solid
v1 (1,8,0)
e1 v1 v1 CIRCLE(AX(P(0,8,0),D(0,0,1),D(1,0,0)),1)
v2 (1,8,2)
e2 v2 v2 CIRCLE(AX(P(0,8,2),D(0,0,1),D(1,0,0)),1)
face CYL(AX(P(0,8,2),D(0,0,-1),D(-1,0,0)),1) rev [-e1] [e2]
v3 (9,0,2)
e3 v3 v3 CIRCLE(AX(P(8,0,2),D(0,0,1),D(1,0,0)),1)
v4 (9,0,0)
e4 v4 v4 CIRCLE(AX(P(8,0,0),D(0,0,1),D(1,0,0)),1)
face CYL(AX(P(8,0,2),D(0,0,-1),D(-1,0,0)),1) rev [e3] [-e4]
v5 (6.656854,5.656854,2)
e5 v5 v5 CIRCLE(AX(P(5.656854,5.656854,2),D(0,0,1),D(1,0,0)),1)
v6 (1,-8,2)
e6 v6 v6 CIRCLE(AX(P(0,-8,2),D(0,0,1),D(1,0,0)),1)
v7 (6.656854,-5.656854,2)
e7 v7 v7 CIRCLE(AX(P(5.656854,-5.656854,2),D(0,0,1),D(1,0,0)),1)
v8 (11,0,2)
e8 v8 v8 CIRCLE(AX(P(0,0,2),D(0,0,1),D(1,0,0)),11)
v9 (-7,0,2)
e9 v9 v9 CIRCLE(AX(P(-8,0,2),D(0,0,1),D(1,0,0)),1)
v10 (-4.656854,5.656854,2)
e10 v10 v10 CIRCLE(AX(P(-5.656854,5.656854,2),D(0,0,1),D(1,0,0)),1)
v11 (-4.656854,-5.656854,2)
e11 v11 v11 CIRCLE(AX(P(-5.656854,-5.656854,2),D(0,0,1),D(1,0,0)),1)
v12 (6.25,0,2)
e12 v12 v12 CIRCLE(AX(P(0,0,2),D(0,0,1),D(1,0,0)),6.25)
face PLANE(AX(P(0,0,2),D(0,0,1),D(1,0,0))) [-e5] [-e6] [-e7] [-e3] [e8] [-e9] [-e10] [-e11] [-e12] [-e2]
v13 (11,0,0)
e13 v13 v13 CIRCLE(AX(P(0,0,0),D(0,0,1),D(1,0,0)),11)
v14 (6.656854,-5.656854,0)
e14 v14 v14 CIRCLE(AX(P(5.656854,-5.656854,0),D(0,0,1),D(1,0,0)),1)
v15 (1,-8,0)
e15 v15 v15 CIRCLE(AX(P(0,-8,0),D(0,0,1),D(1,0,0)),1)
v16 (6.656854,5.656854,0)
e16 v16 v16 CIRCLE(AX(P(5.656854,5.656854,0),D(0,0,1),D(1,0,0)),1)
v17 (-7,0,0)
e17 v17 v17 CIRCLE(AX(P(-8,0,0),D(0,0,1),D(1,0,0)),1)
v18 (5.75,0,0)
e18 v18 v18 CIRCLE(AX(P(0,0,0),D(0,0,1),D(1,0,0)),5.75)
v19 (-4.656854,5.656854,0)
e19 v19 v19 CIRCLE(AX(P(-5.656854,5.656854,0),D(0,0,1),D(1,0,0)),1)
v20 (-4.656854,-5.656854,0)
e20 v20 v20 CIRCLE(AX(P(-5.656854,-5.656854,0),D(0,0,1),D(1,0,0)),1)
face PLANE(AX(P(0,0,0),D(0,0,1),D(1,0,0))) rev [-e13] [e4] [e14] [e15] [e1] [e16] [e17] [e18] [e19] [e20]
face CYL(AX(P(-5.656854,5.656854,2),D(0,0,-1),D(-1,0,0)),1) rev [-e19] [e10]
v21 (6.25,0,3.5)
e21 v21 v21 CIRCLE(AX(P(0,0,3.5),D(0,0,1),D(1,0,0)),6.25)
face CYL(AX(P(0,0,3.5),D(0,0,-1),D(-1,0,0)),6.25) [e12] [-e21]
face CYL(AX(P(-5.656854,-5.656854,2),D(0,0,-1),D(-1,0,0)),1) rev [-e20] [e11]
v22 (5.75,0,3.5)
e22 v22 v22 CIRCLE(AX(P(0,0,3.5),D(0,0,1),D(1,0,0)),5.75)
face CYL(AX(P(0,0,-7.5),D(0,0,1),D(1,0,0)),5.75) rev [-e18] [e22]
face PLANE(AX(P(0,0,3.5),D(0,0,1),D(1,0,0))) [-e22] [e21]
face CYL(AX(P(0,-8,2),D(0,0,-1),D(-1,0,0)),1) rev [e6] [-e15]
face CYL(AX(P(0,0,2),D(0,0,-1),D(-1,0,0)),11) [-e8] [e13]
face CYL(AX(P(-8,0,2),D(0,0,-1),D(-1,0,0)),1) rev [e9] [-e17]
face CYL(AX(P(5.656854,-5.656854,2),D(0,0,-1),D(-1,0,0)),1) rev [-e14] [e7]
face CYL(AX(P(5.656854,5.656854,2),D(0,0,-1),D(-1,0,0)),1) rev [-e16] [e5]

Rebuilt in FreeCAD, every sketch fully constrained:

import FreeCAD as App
import Part
import Sketcher
Q = App.Units.Quantity

doc = App.newDocument("Part")
body = doc.addObject("PartDesign::Body", "Body")

sketch1 = body.newObject("Sketcher::SketchObject", "Sketch")
sketch1.AttachmentSupport = (doc.getObject("XY_Plane"), [""])
sketch1.MapMode = "FlatFace"
sketch1.addGeometry([
    Part.Circle(App.Vector(0, 0, 0), App.Vector(0, 0, 1), 11),
    Part.Circle(App.Vector(-5.7, -5.7, 0), App.Vector(0, 0, 1), 1),
    Part.Circle(App.Vector(0, -8, 0), App.Vector(0, 0, 1), 1),
    Part.Circle(App.Vector(5.7, -5.7, 0), App.Vector(0, 0, 1), 1),
    Part.Circle(App.Vector(-8, 0, 0), App.Vector(0, 0, 1), 1),
    Part.Circle(App.Vector(-5.7, 5.7, 0), App.Vector(0, 0, 1), 1),
    Part.Circle(App.Vector(8, 0, 0), App.Vector(0, 0, 1), 1),
    Part.Circle(App.Vector(0, 8, 0), App.Vector(0, 0, 1), 1),
    Part.Circle(App.Vector(5.7, 5.7, 0), App.Vector(0, 0, 1), 1),
], False)
sketch1.addConstraint([
    Sketcher.Constraint("Coincident", 0, 3, -1, 1),
    Sketcher.Constraint("Equal", 1, 2),
    Sketcher.Constraint("Equal", 2, 3),
    Sketcher.Constraint("Equal", 3, 4),
    Sketcher.Constraint("Equal", 4, 5),
    Sketcher.Constraint("Equal", 5, 6),
    Sketcher.Constraint("Equal", 6, 7),
    Sketcher.Constraint("Equal", 7, 8),
    Sketcher.Constraint("Symmetric", 3, 3, 5, 3, -1, 1),
    Sketcher.Constraint("Symmetric", 4, 3, 6, 3, -1, 1),
    Sketcher.Constraint("Symmetric", 2, 3, 7, 3, -1, 1),
    Sketcher.Constraint("Symmetric", 1, 3, 8, 3, -1, 1),
    Sketcher.Constraint("Symmetric", 1, 3, 3, 3, -2),
    Sketcher.Constraint("PointOnObject", 2, 3, -2),
    Sketcher.Constraint("PointOnObject", 4, 3, -1),
    Sketcher.Constraint("Diameter", 0, Q("22 mm")),
    Sketcher.Constraint("Diameter", 1, Q("2 mm")),
    Sketcher.Constraint("DistanceY", 2, 3, -1, 1, Q("8 mm")),
    Sketcher.Constraint("DistanceX", 4, 3, -1, 1, Q("8 mm")),
    Sketcher.Constraint("DistanceX", 1, 3, 3, 3, Q("11.313708 mm")),
    Sketcher.Constraint("DistanceY", 1, 3, 5, 3, Q("11.313708 mm")),
])
pad1 = body.newObject("PartDesign::Pad", "Pad")
pad1.Profile = sketch1
pad1.Length = 2

sketch2 = body.newObject("Sketcher::SketchObject", "Sketch001")
sketch2.AttachmentSupport = (doc.getObject("XY_Plane"), [""])
sketch2.MapMode = "FlatFace"
sketch2.AttachmentOffset = App.Placement(App.Vector(0, 0, 2), App.Rotation())
sketch2.addGeometry(Part.Circle(App.Vector(0, 0, 0), App.Vector(0, 0, 1), 6), False)
sketch2.addConstraint([
    Sketcher.Constraint("Coincident", 0, 3, -1, 1),
    Sketcher.Constraint("Diameter", 0, Q("12.5 mm")),
])
pad2 = body.newObject("PartDesign::Pad", "Pad001")
pad2.Profile = sketch2
pad2.Length = 1.5

sketch3 = body.newObject("Sketcher::SketchObject", "Sketch002")
sketch3.AttachmentSupport = (doc.getObject("XY_Plane"), [""])
sketch3.MapMode = "FlatFace"
sketch3.AttachmentOffset = App.Placement(App.Vector(0, 0, 3.5), App.Rotation())
sketch3.addGeometry(Part.Circle(App.Vector(0, 0, 0), App.Vector(0, 0, 1), 6), False)
sketch3.addConstraint([
    Sketcher.Constraint("Coincident", 0, 3, -1, 1),
    Sketcher.Constraint("Diameter", 0, Q("11.5 mm")),
])
pocket1 = body.newObject("PartDesign::Pocket", "Pocket")
pocket1.Profile = sketch3
pocket1.Length = 11

doc.recompute()
